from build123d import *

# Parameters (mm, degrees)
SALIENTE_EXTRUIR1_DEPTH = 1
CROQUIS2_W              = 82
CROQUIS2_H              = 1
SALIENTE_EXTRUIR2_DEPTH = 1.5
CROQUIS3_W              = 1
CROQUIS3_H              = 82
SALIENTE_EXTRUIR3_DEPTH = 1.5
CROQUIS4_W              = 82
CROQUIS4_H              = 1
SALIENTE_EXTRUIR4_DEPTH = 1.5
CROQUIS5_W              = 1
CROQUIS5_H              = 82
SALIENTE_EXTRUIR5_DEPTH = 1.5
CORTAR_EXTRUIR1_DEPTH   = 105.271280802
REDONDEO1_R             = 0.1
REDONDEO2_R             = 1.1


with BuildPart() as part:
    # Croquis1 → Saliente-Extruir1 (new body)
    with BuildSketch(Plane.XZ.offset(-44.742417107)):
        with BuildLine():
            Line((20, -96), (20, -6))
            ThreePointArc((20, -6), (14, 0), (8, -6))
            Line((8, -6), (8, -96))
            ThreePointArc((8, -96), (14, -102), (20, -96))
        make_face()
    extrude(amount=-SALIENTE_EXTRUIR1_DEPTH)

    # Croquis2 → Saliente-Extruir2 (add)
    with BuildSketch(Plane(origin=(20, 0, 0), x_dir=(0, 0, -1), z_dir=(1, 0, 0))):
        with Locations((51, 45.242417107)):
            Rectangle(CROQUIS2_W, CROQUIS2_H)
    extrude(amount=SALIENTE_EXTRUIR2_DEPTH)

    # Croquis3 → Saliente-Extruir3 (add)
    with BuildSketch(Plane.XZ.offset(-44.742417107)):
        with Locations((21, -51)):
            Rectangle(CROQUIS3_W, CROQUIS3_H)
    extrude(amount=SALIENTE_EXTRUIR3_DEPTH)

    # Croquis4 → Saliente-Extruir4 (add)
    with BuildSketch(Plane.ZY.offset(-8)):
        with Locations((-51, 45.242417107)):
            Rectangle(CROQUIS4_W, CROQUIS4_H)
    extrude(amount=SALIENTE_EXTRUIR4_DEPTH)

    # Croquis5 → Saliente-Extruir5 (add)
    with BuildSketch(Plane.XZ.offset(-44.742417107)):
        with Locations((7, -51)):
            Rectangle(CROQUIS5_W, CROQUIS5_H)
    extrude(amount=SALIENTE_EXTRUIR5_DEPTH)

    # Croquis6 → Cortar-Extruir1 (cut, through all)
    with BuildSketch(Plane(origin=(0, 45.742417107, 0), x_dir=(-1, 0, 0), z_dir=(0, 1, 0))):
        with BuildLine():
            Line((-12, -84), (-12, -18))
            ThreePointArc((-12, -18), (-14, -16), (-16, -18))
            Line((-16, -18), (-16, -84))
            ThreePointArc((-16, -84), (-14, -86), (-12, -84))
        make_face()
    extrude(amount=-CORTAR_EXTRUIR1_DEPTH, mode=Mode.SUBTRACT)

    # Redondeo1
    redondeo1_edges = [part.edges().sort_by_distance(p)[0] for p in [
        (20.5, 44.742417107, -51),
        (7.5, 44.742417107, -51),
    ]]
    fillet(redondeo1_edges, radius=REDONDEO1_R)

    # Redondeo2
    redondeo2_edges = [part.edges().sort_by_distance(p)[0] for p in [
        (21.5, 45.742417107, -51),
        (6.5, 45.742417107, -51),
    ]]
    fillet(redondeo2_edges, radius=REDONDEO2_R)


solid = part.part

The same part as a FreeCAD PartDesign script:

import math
import FreeCAD as App
import Part
import Sketcher
Q = App.Units.Quantity


def edges_at(feature, points):
    """Names of the edges that pass closest to the given points."""
    edges = feature.Shape.Edges
    near = lambda p: min(range(len(edges)), key=lambda i: edges[i].distToShape(Part.Vertex(*p))[0])
    return sorted({f"Edge{near(p) + 1}" for p in points})


def add_polygon(sketch, points):
    """Adds a closed chain of lines whose ends are joined by coincident constraints."""
    first, n = sketch.GeometryCount, len(points)
    for a, b in zip(points, points[1:] + points[:1]):
        sketch.addGeometry(Part.LineSegment(App.Vector(*a, 0), App.Vector(*b, 0)), False)
    for i in range(n):
        sketch.addConstraint(Sketcher.Constraint("Coincident", first + i, 2, first + (i + 1) % n, 1))

doc = App.newDocument("Part")
body = doc.addObject("PartDesign::Body", "Body")

# Sketch on XZ plane
sketch1 = body.newObject("Sketcher::SketchObject", "Sketch")
sketch1.AttachmentSupport = (doc.getObject("XZ_Plane"), [""])
sketch1.MapMode = "FlatFace"
sketch1.AttachmentOffset = App.Placement(App.Vector(0, 0, -44.742417), App.Rotation())
sketch1.addGeometry(Part.LineSegment(App.Vector(20, -96, 0), App.Vector(20, -6, 0)), False)
sketch1.addGeometry(Part.ArcOfCircle(Part.Circle(App.Vector(14, -6, 0), App.Vector(0, 0, 1), 6), math.radians(0), math.radians(180)), False)
sketch1.addGeometry(Part.LineSegment(App.Vector(8, -6, 0), App.Vector(8, -96, 0)), False)
sketch1.addGeometry(Part.ArcOfCircle(Part.Circle(App.Vector(14, -96, 0), App.Vector(0, 0, 1), 6), math.radians(180), math.radians(360)), False)
sketch1.addConstraint(Sketcher.Constraint("Tangent", 0, 2, 1, 1))
sketch1.addConstraint(Sketcher.Constraint("Tangent", 1, 2, 2, 1))
sketch1.addConstraint(Sketcher.Constraint("Tangent", 2, 2, 3, 1))
sketch1.addConstraint(Sketcher.Constraint("Tangent", 3, 2, 0, 1))
sketch1.addConstraint(Sketcher.Constraint("Vertical", 0))
sketch1.addConstraint(Sketcher.Constraint("Vertical", 2))
sketch1.addConstraint(Sketcher.Constraint("Radius", 1, Q("6 mm")))
sketch1.addConstraint(Sketcher.Constraint("DistanceY", 0, 1, 0, 2, Q("90 mm")))
sketch1.addConstraint(Sketcher.Constraint("DistanceX", -1, 1, 1, 3, Q("14 mm")))
sketch1.addConstraint(Sketcher.Constraint("DistanceY", 1, 3, -1, 1, Q("6 mm")))
pad1 = body.newObject("PartDesign::Pad", "Pad")
pad1.Profile = sketch1
pad1.Length = 1
pad1.Reversed = True

# Sketch on YZ plane
sketch2 = body.newObject("Sketcher::SketchObject", "Sketch001")
sketch2.AttachmentSupport = (doc.getObject("YZ_Plane"), [""])
sketch2.MapMode = "FlatFace"
sketch2.AttachmentOffset = App.Placement(App.Vector(0, 0, 20), App.Rotation())
add_polygon(sketch2, [(45.7, -10), (44.7, -10), (44.7, -92), (45.7, -92)])  # lines 0-3
sketch2.addConstraint(Sketcher.Constraint("Horizontal", 0))
sketch2.addConstraint(Sketcher.Constraint("Vertical", 1))
sketch2.addConstraint(Sketcher.Constraint("Horizontal", 2))
sketch2.addConstraint(Sketcher.Constraint("Vertical", 3))
sketch2.addConstraint(Sketcher.Constraint("DistanceX", 0, 2, 0, 1, Q("1 mm")))
sketch2.addConstraint(Sketcher.Constraint("DistanceY", 1, 2, 1, 1, Q("82 mm")))
sketch2.addConstraint(Sketcher.Constraint("DistanceY", 0, 2, -1, 1, Q("10 mm")))
sketch2.addConstraint(Sketcher.Constraint("DistanceX", -1, 1, 0, 2, Q("44.742417 mm")))
pad2 = body.newObject("PartDesign::Pad", "Pad001")
pad2.Profile = sketch2
pad2.Length = 1.5

# Sketch on XZ plane
sketch3 = body.newObject("Sketcher::SketchObject", "Sketch002")
sketch3.AttachmentSupport = (doc.getObject("XZ_Plane"), [""])
sketch3.MapMode = "FlatFace"
sketch3.AttachmentOffset = App.Placement(App.Vector(0, 0, -44.742417), App.Rotation())
add_polygon(sketch3, [(20.5, -10), (20.5, -92), (21.5, -92), (21.5, -10)])  # lines 0-3
sketch3.addConstraint(Sketcher.Constraint("Vertical", 0))
sketch3.addConstraint(Sketcher.Constraint("Horizontal", 1))
sketch3.addConstraint(Sketcher.Constraint("Vertical", 2))
sketch3.addConstraint(Sketcher.Constraint("Horizontal", 3))
sketch3.addConstraint(Sketcher.Constraint("DistanceX", 1, 1, 1, 2, Q("1 mm")))
sketch3.addConstraint(Sketcher.Constraint("DistanceY", 0, 2, 0, 1, Q("82 mm")))
sketch3.addConstraint(Sketcher.Constraint("DistanceY", 0, 2, -1, 1, Q("92 mm")))
sketch3.addConstraint(Sketcher.Constraint("DistanceX", -1, 1, 0, 2, Q("20.5 mm")))
pad3 = body.newObject("PartDesign::Pad", "Pad002")
pad3.Profile = sketch3
pad3.Length = 1.5

# Sketch on YZ plane
sketch4 = body.newObject("Sketcher::SketchObject", "Sketch003")
sketch4.AttachmentSupport = (doc.getObject("YZ_Plane"), [""])
sketch4.MapMode = "FlatFace"
sketch4.AttachmentOffset = App.Placement(App.Vector(0, 0, 8), App.Rotation())
add_polygon(sketch4, [(45.7, -92), (44.7, -92), (44.7, -10), (45.7, -10)])  # lines 0-3
sketch4.addConstraint(Sketcher.Constraint("Horizontal", 0))
sketch4.addConstraint(Sketcher.Constraint("Vertical", 1))
sketch4.addConstraint(Sketcher.Constraint("Horizontal", 2))
sketch4.addConstraint(Sketcher.Constraint("Vertical", 3))
sketch4.addConstraint(Sketcher.Constraint("DistanceX", 0, 2, 0, 1, Q("1 mm")))
sketch4.addConstraint(Sketcher.Constraint("DistanceY", 1, 1, 1, 2, Q("82 mm")))
sketch4.addConstraint(Sketcher.Constraint("DistanceY", 0, 2, -1, 1, Q("92 mm")))
sketch4.addConstraint(Sketcher.Constraint("DistanceX", -1, 1, 0, 2, Q("44.742417 mm")))
pad4 = body.newObject("PartDesign::Pad", "Pad003")
pad4.Profile = sketch4
pad4.Length = 1.5
pad4.Reversed = True

# Sketch on XZ plane
sketch5 = body.newObject("Sketcher::SketchObject", "Sketch004")
sketch5.AttachmentSupport = (doc.getObject("XZ_Plane"), [""])
sketch5.MapMode = "FlatFace"
sketch5.AttachmentOffset = App.Placement(App.Vector(0, 0, -44.742417), App.Rotation())
add_polygon(sketch5, [(6.5, -10), (6.5, -92), (7.5, -92), (7.5, -10)])  # lines 0-3
sketch5.addConstraint(Sketcher.Constraint("Vertical", 0))
sketch5.addConstraint(Sketcher.Constraint("Horizontal", 1))
sketch5.addConstraint(Sketcher.Constraint("Vertical", 2))
sketch5.addConstraint(Sketcher.Constraint("Horizontal", 3))
sketch5.addConstraint(Sketcher.Constraint("DistanceX", 1, 1, 1, 2, Q("1 mm")))
sketch5.addConstraint(Sketcher.Constraint("DistanceY", 0, 2, 0, 1, Q("82 mm")))
sketch5.addConstraint(Sketcher.Constraint("DistanceY", 0, 2, -1, 1, Q("92 mm")))
sketch5.addConstraint(Sketcher.Constraint("DistanceX", -1, 1, 0, 2, Q("6.5 mm")))
pad5 = body.newObject("PartDesign::Pad", "Pad004")
pad5.Profile = sketch5
pad5.Length = 1.5

# Sketch on XZ plane
sketch6 = body.newObject("Sketcher::SketchObject", "Sketch005")
sketch6.AttachmentSupport = (doc.getObject("XZ_Plane"), [""])
sketch6.MapMode = "FlatFace"
sketch6.AttachmentOffset = App.Placement(App.Vector(0, 0, -45.742417), App.Rotation())
sketch6.addGeometry(Part.LineSegment(App.Vector(12, -84, 0), App.Vector(12, -18, 0)), False)
sketch6.addGeometry(Part.ArcOfCircle(Part.Circle(App.Vector(14, -18, 0), App.Vector(0, 0, 1), 2), math.radians(0), math.radians(180)), False)
sketch6.addGeometry(Part.LineSegment(App.Vector(16, -18, 0), App.Vector(16, -84, 0)), False)
sketch6.addGeometry(Part.ArcOfCircle(Part.Circle(App.Vector(14, -84, 0), App.Vector(0, 0, 1), 2), math.radians(180), math.radians(360)), False)
sketch6.addConstraint(Sketcher.Constraint("Tangent", 0, 2, 1, 2))
sketch6.addConstraint(Sketcher.Constraint("Tangent", 1, 1, 2, 1))
sketch6.addConstraint(Sketcher.Constraint("Tangent", 2, 2, 3, 2))
sketch6.addConstraint(Sketcher.Constraint("Tangent", 3, 1, 0, 1))
sketch6.addConstraint(Sketcher.Constraint("Vertical", 0))
sketch6.addConstraint(Sketcher.Constraint("Vertical", 2))
sketch6.addConstraint(Sketcher.Constraint("Radius", 1, Q("2 mm")))
sketch6.addConstraint(Sketcher.Constraint("DistanceY", 0, 1, 0, 2, Q("66 mm")))
sketch6.addConstraint(Sketcher.Constraint("DistanceX", -1, 1, 1, 3, Q("14 mm")))
sketch6.addConstraint(Sketcher.Constraint("DistanceY", 1, 3, -1, 1, Q("18 mm")))
pocket1 = body.newObject("PartDesign::Pocket", "Pocket")
pocket1.Profile = sketch6
pocket1.Type = "ThroughAll"
pocket1.Reversed = True
doc.recompute()

fillet = body.newObject("PartDesign::Fillet", "Fillet")
fillet.Base = (pocket1, edges_at(pocket1, [(20.5, 44.742, -51), (7.5, 44.742, -51)]))
fillet.Radius = 0.1
doc.recompute()

fillet2 = body.newObject("PartDesign::Fillet", "Fillet001")
fillet2.Base = (fillet, edges_at(fillet, [(21.5, 45.742, -51), (6.5, 45.742, -51)]))
fillet2.Radius = 1.1

doc.recompute()
